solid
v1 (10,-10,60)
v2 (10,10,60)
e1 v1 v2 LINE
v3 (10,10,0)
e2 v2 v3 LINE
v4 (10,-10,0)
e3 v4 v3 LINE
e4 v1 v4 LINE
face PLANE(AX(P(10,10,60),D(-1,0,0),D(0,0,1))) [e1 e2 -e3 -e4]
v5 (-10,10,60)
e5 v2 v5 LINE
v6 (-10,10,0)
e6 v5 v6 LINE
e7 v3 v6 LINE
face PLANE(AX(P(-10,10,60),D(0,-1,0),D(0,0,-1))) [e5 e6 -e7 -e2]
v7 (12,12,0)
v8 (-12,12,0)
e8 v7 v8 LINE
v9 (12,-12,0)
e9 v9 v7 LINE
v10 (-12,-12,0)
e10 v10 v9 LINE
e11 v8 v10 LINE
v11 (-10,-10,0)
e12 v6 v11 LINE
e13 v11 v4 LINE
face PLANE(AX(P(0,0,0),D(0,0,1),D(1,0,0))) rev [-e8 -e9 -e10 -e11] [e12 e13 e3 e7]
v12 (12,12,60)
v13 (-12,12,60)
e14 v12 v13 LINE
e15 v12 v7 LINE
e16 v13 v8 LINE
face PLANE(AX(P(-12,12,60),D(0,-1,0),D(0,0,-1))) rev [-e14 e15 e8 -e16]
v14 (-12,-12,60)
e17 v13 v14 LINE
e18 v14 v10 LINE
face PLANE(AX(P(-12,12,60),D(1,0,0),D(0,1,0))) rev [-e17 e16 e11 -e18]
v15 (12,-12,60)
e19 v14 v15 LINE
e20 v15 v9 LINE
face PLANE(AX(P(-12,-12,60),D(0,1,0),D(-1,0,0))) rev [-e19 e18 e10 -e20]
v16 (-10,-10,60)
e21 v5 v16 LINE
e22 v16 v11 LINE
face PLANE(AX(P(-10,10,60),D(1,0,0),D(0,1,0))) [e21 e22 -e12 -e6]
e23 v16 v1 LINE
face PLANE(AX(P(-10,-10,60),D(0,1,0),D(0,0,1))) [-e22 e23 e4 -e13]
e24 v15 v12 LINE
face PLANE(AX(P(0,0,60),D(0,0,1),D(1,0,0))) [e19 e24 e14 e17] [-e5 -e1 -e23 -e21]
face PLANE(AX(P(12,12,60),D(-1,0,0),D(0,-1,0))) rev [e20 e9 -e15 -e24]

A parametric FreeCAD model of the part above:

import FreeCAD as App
import Part
import Sketcher
from FreeCAD import Vector


def add_polygon(sketch, points):
    """Adds a closed chain of lines whose ends are joined by coincident constraints."""
    first, n = sketch.GeometryCount, len(points)
    for a, b in zip(points, points[1:] + points[:1]):
        sketch.addGeometry(Part.LineSegment(App.Vector(*a, 0), App.Vector(*b, 0)), False)
    for i in range(n):
        sketch.addConstraint(Sketcher.Constraint("Coincident", first + i, 2, first + (i + 1) % n, 1))

doc = App.newDocument("Part")
body = doc.addObject("PartDesign::Body", "Body")

# Sketch on XY plane
sketch1 = doc.addObject("Sketcher::SketchObject", "Sketch")
body.addObject(sketch1)
sketch1.AttachmentSupport = (doc.XY_Plane, [""])
sketch1.MapMode = "FlatFace"
add_polygon(sketch1, [(-12, 12), (-12, -12), (12, -12), (12, 12)])  # lines 0-3
add_polygon(sketch1, [(10, -10), (-10, -10), (-10, 10), (10, 10)])  # lines 4-7
sketch1.addConstraint([
    Sketcher.Constraint("Vertical", 0),
    Sketcher.Constraint("Horizontal", 1),
    Sketcher.Constraint("Vertical", 2),
    Sketcher.Constraint("Horizontal", 3),
    Sketcher.Constraint("Horizontal", 4),
    Sketcher.Constraint("Vertical", 5),
    Sketcher.Constraint("Horizontal", 6),
    Sketcher.Constraint("Vertical", 7),
    Sketcher.Constraint("Symmetric", 0, 2, 2, 2, -1, 1),
    Sketcher.Constraint("Symmetric", 4, 2, 6, 2, -1, 1),
    Sketcher.Constraint("Equal", 3, 0),
    Sketcher.Constraint("Equal", 6, 5),
    Sketcher.Constraint("DistanceX", 1, 1, 1, 2, 24.0),
    Sketcher.Constraint("DistanceX", 4, 2, 4, 1, 20.0),
])
pad1 = doc.addObject("PartDesign::Pad", "Pad")
body.addObject(pad1)
pad1.Profile = sketch1
pad1.Length = 60

doc.recompute()
